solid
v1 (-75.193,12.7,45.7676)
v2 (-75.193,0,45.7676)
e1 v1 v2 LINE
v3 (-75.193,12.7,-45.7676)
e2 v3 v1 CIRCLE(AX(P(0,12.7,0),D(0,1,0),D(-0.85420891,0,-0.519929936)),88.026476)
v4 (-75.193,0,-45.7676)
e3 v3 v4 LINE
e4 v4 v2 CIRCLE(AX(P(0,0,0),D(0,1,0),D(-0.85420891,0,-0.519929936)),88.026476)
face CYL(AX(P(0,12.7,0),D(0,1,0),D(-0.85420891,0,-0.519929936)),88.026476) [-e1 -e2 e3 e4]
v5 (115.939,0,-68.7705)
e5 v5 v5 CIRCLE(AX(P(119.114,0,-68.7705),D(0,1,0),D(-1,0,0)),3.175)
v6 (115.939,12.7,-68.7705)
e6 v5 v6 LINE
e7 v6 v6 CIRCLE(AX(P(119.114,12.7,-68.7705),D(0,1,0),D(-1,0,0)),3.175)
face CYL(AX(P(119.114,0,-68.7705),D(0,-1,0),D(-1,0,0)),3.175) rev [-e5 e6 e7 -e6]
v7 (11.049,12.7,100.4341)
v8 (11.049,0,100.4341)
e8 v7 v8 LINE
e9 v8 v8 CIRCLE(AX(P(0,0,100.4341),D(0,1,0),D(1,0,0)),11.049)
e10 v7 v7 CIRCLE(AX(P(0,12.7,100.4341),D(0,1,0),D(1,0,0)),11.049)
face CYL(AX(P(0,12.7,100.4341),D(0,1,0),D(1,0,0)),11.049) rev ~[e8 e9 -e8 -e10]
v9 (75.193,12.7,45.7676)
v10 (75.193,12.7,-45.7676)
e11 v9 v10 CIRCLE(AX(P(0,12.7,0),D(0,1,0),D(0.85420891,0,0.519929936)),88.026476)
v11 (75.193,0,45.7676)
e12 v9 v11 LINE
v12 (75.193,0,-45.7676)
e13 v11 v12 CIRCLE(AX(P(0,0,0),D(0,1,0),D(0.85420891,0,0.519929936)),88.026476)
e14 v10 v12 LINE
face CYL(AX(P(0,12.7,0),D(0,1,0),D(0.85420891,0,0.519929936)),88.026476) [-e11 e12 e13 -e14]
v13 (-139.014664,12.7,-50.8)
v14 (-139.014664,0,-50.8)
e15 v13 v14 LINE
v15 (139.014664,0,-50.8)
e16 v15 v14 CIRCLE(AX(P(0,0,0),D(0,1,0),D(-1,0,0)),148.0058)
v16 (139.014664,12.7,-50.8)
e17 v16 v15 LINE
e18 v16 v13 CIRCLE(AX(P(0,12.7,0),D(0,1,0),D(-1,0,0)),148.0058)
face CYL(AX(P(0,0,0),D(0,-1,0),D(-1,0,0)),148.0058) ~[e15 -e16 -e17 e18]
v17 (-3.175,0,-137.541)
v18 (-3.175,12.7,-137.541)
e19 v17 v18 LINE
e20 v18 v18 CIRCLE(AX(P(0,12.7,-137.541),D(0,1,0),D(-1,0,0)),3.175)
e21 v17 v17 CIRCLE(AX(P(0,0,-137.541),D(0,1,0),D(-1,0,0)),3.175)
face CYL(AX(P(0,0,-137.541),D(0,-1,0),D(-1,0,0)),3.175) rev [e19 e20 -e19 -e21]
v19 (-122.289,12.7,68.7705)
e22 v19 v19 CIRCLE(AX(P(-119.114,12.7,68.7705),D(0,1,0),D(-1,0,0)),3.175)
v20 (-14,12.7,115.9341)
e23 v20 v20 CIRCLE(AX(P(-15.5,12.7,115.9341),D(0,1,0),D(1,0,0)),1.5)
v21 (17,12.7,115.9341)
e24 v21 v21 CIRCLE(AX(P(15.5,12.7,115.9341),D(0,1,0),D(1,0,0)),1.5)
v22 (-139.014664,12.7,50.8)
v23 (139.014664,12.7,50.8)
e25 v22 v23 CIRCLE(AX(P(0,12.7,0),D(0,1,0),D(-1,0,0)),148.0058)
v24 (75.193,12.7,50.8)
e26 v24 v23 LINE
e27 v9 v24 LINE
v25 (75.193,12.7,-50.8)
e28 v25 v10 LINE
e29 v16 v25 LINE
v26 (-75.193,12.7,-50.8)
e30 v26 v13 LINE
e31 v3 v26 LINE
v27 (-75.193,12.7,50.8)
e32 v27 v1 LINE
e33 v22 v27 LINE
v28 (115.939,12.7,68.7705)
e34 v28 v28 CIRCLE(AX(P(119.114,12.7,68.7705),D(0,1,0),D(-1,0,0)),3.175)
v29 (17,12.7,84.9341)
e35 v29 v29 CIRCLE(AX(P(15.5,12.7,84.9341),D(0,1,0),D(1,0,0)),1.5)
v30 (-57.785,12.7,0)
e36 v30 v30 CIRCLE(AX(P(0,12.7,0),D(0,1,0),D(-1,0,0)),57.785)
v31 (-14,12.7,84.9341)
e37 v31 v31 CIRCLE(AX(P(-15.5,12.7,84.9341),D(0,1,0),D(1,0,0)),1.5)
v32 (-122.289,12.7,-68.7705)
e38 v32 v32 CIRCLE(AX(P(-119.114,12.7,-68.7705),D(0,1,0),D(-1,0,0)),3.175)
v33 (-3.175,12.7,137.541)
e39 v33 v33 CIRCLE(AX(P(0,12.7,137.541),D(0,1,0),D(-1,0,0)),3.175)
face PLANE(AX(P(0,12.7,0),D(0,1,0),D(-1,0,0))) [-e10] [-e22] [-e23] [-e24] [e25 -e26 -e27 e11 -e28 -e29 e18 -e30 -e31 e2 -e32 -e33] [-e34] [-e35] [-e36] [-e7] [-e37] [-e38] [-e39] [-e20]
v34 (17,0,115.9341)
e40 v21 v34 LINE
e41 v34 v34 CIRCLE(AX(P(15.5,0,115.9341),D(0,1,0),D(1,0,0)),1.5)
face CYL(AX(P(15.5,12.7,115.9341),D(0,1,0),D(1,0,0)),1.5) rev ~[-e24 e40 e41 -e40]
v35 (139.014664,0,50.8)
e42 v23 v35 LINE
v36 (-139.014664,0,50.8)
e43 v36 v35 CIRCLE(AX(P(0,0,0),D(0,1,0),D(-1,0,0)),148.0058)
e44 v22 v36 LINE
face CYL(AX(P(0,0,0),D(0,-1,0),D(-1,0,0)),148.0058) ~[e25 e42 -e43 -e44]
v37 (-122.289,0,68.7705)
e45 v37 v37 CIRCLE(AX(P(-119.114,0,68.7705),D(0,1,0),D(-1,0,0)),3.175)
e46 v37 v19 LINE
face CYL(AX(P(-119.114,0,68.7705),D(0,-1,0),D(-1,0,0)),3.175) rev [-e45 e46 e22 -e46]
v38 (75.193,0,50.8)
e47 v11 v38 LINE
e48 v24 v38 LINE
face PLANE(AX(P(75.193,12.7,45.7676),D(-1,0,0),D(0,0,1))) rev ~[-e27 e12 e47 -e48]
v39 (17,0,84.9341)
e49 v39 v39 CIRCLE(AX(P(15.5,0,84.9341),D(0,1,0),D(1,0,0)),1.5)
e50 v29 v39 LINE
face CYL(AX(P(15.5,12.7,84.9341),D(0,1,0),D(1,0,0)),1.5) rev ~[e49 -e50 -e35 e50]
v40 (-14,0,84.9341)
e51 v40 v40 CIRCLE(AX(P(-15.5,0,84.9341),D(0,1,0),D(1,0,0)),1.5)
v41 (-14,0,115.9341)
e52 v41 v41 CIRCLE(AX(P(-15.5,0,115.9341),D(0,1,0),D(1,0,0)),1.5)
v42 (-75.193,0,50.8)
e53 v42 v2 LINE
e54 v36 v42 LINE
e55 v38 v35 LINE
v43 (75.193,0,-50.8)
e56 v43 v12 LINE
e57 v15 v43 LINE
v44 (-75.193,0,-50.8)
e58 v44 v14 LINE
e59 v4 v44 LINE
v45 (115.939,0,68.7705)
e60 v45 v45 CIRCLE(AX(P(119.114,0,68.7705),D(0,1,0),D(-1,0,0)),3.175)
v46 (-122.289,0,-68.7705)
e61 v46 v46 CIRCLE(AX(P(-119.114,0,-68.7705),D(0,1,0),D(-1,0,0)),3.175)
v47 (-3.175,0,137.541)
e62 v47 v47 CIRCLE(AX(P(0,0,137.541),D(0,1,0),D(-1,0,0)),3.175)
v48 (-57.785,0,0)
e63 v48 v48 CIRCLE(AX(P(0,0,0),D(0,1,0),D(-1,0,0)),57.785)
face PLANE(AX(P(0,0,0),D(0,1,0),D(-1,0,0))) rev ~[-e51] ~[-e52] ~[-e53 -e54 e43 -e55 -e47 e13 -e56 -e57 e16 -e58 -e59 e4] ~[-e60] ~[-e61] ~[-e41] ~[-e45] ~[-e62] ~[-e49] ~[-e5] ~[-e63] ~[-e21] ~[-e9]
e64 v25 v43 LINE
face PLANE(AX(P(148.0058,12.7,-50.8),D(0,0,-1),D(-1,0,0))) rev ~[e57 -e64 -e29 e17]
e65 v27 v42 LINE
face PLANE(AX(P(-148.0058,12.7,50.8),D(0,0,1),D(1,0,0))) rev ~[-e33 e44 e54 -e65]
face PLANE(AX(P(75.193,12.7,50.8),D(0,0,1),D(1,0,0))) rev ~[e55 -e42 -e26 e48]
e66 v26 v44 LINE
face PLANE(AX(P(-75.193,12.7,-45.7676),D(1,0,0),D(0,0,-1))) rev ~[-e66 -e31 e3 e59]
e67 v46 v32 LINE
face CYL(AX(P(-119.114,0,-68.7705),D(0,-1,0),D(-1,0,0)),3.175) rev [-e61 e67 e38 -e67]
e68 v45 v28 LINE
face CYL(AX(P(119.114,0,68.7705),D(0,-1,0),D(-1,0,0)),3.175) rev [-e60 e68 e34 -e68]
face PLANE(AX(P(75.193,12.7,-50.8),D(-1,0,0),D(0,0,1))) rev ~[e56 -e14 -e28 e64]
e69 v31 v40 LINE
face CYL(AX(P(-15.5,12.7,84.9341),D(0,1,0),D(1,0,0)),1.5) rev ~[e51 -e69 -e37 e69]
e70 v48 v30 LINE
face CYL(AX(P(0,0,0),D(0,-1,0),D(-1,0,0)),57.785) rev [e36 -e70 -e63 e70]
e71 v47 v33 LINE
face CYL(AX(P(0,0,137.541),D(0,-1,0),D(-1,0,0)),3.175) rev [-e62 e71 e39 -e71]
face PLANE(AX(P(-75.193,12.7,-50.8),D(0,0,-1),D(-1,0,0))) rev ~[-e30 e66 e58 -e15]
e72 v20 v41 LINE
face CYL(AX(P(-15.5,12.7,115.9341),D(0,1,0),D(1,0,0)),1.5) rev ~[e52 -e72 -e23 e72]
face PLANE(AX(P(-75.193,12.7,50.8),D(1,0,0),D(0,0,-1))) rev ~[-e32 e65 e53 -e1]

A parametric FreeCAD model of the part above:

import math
import FreeCAD as App
import Part
import Sketcher
from FreeCAD import Vector
Q = App.Units.Quantity

doc = App.newDocument("Part")
body = doc.addObject("PartDesign::Body", "Body")

sketch1 = body.newObject("Sketcher::SketchObject", "Sketch")
sketch1.AttachmentSupport = (doc.getObject("XZ_Plane"), [""])
sketch1.MapMode = "FlatFace"
sketch1.addGeometry([
    Part.Circle(Vector(0, 0, 0), Vector(0, 0, 1), 148),
    Part.Circle(Vector(119.1, -68.8, 0), Vector(0, 0, 1), 3.2),
    Part.Circle(Vector(0, -137.5, 0), Vector(0, 0, 1), 3.2),
    Part.Circle(Vector(-119.1, -68.8, 0), Vector(0, 0, 1), 3.2),
    Part.Circle(Vector(119.1, 68.8, 0), Vector(0, 0, 1), 3.2),
    Part.Circle(Vector(0, 0, 0), Vector(0, 0, 1), 57.8),
    Part.Circle(Vector(-119.1, 68.8, 0), Vector(0, 0, 1), 3.2),
    Part.Circle(Vector(0, 137.5, 0), Vector(0, 0, 1), 3.2),
], False)
sketch1.addConstraint([
    Sketcher.Constraint("Coincident", 0, 3, -1, 1),
    Sketcher.Constraint("Coincident", 5, 3, -1, 1),
    Sketcher.Constraint("Equal", 1, 2),
    Sketcher.Constraint("Equal", 2, 3),
    Sketcher.Constraint("Equal", 3, 4),
    Sketcher.Constraint("Equal", 4, 6),
    Sketcher.Constraint("Equal", 6, 7),
    Sketcher.Constraint("Symmetric", 3, 3, 4, 3, -1, 1),
    Sketcher.Constraint("Symmetric", 1, 3, 6, 3, -1, 1),
    Sketcher.Constraint("Symmetric", 2, 3, 7, 3, -1, 1),
    Sketcher.Constraint("Symmetric", 1, 3, 3, 3, -2),
    Sketcher.Constraint("PointOnObject", 2, 3, -2),
    Sketcher.Constraint("Diameter", 1, Q("0.25 in")),
    Sketcher.Constraint("Diameter", 5, Q("4.55 in")),
    Sketcher.Constraint("Diameter", 0, Q("11.654 in")),
    Sketcher.Constraint("DistanceY", 2, 3, -1, 1, Q("5.415 in")),
    Sketcher.Constraint("DistanceY", 1, 3, 4, 3, Q("5.415 in")),
    Sketcher.Constraint("DistanceX", -1, 1, 1, 3, Q("119.114 mm")),
])
pad1 = body.newObject("PartDesign::Pad", "Pad")
pad1.Profile = sketch1
pad1.Length = Q("0.5 in")
pad1.Reversed = True

sketch2 = body.newObject("Sketcher::SketchObject", "Sketch001")
sketch2.AttachmentSupport = (doc.getObject("XZ_Plane"), [""])
sketch2.MapMode = "FlatFace"
sketch2.AttachmentOffset = App.Placement(Vector(0, 0, -0.5 * 25.4), App.Rotation())
sketch2.addGeometry([
    Part.Circle(Vector(15.5, 84.9, 0), Vector(0, 0, 1), 1.5),
    Part.Circle(Vector(15.5, 115.9, 0), Vector(0, 0, 1), 1.5),
    Part.Circle(Vector(-15.5, 115.9, 0), Vector(0, 0, 1), 1.5),
    Part.Circle(Vector(-15.5, 84.9, 0), Vector(0, 0, 1), 1.5),
    Part.Circle(Vector(0, 100.4, 0), Vector(0, 0, 1), 11),
], False)
sketch2.addConstraint([
    Sketcher.Constraint("Equal", 0, 1),
    Sketcher.Constraint("Equal", 1, 2),
    Sketcher.Constraint("Equal", 2, 3),
    Sketcher.Constraint("Symmetric", 1, 3, 2, 3, -2),
    Sketcher.Constraint("Symmetric", 0, 3, 3, 3, -2),
    Sketcher.Constraint("PointOnObject", 4, 3, -2),
    Sketcher.Constraint("Vertical", 0, 3, 1, 3),
    Sketcher.Constraint("Diameter", 4, Q("0.87 in")),
    Sketcher.Constraint("Diameter", 0, Q("0.1181 in")),
    Sketcher.Constraint("DistanceY", -1, 1, 4, 3, Q("3.9541 in")),
    Sketcher.Constraint("DistanceX", -1, 1, 0, 3, Q("15.5 mm")),
    Sketcher.Constraint("DistanceY", -1, 1, 0, 3, Q("84.934 mm")),
    Sketcher.Constraint("DistanceY", -1, 1, 1, 3, Q("115.934 mm")),
])
pocket1 = body.newObject("PartDesign::Pocket", "Pocket")
pocket1.Profile = sketch2
pocket1.Type = "ThroughAll"
pocket1.Reversed = True

sketch3 = body.newObject("Sketcher::SketchObject", "Sketch002")
sketch3.AttachmentSupport = (doc.getObject("XZ_Plane"), [""])
sketch3.MapMode = "FlatFace"
sketch3.AttachmentOffset = App.Placement(Vector(0, 0, -0.5 * 25.4), App.Rotation())
sketch3.addGeometry([
    Part.LineSegment(Vector(-75, -51, 0), Vector(-148, -51, 0)),
    Part.LineSegment(Vector(-148, -51, 0), Vector(-148, 51, 0)),
    Part.LineSegment(Vector(-148, 51, 0), Vector(-75, 51, 0)),
    Part.LineSegment(Vector(-75, 51, 0), Vector(-75, 46, 0)),
    Part.ArcOfCircle(Part.Circle(Vector(0, 0, 0), Vector(0, 0, 1), 88), math.radians(149), math.radians(211)),
    Part.LineSegment(Vector(-75, -46, 0), Vector(-75, -51, 0)),
    Part.LineSegment(Vector(75, 51, 0), Vector(148, 51, 0)),
    Part.LineSegment(Vector(148, 51, 0), Vector(148, -51, 0)),
    Part.LineSegment(Vector(148, -51, 0), Vector(75, -51, 0)),
    Part.LineSegment(Vector(75, -51, 0), Vector(75, -46, 0)),
    Part.ArcOfCircle(Part.Circle(Vector(0, 0, 0), Vector(0, 0, 1), 88), math.radians(-31), math.radians(31)),
    Part.LineSegment(Vector(75, 46, 0), Vector(75, 51, 0)),
], False)
sketch3.addConstraint([
    Sketcher.Constraint("Coincident", 0, 2, 1, 1),
    Sketcher.Constraint("Coincident", 1, 2, 2, 1),
    Sketcher.Constraint("Coincident", 2, 2, 3, 1),
    Sketcher.Constraint("Coincident", 3, 2, 4, 1),
    Sketcher.Constraint("Coincident", 4, 2, 5, 1),
    Sketcher.Constraint("Coincident", 5, 2, 0, 1),
    Sketcher.Constraint("Coincident", 6, 2, 7, 1),
    Sketcher.Constraint("Coincident", 7, 2, 8, 1),
    Sketcher.Constraint("Coincident", 8, 2, 9, 1),
    Sketcher.Constraint("Coincident", 9, 2, 10, 1),
    Sketcher.Constraint("Coincident", 10, 2, 11, 1),
    Sketcher.Constraint("Coincident", 11, 2, 6, 1),
    Sketcher.Constraint("Horizontal", 0),
    Sketcher.Constraint("Vertical", 1),
    Sketcher.Constraint("Horizontal", 2),
    Sketcher.Constraint("Vertical", 3),
    Sketcher.Constraint("Vertical", 5),
    Sketcher.Constraint("Horizontal", 6),
    Sketcher.Constraint("Vertical", 7),
    Sketcher.Constraint("Horizontal", 8),
    Sketcher.Constraint("Vertical", 9),
    Sketcher.Constraint("Vertical", 11),
    Sketcher.Constraint("Coincident", 4, 3, -1, 1),
    Sketcher.Constraint("Coincident", 10, 3, -1, 1),
    Sketcher.Constraint("Equal", 4, 10),
    Sketcher.Constraint("Symmetric", 0, 2, 6, 2, -1, 1),
    Sketcher.Constraint("Symmetric", 2, 2, 8, 2, -1, 1),
    Sketcher.Constraint("Symmetric", 5, 2, 8, 2, -2),
    Sketcher.Constraint("Horizontal", 3, 2, 10, 2),
    Sketcher.Constraint("DistanceY", 1, 1, 1, 2, Q("4 in")),
    Sketcher.Constraint("Radius", 4, Q("3.4656 in")),
    Sketcher.Constraint("DistanceX", 0, 2, -1, 1, Q("5.827 in")),
    Sketcher.Constraint("DistanceX", 0, 2, 0, 1, Q("72.8128 mm")),
])
pocket2 = body.newObject("PartDesign::Pocket", "Pocket001")
pocket2.Profile = sketch3
pocket2.Type = "ThroughAll"
pocket2.Reversed = True

doc.recompute()
